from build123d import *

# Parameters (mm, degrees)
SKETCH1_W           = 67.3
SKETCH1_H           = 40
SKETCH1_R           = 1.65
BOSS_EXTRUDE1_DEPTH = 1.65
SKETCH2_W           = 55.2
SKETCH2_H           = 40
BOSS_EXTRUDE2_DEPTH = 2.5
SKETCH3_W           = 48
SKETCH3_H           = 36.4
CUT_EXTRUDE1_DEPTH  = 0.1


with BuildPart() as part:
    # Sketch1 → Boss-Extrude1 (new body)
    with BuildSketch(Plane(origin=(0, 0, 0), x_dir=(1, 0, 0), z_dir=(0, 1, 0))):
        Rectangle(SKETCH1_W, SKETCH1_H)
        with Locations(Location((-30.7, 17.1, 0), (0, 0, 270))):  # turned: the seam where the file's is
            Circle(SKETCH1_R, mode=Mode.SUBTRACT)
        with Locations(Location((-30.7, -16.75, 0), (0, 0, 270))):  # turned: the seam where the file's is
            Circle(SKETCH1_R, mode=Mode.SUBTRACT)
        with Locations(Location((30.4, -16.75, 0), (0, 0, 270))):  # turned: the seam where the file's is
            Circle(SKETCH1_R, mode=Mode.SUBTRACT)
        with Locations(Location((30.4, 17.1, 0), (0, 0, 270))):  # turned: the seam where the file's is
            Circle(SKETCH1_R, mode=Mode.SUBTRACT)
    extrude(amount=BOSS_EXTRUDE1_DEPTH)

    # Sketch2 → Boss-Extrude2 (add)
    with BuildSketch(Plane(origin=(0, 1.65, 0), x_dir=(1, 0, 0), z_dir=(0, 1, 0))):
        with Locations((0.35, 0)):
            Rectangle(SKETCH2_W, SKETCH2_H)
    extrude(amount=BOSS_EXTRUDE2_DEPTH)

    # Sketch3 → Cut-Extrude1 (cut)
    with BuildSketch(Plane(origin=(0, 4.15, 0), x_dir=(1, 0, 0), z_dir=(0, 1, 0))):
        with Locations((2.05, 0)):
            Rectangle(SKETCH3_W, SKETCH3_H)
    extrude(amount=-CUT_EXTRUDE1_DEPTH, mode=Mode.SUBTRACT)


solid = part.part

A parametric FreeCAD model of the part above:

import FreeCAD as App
import Part
import Sketcher
from FreeCAD import Vector
Q = App.Units.Quantity

doc = App.newDocument("Part")
params = doc.addObject("Spreadsheet::Sheet", "Params")
for row, (alias, value) in enumerate([
    ("sketch1_diameter", "3.3 mm"),
    ("sketch1_height", "40 mm"),
    ("sketch1_width", "67.3 mm"),
    ("pad1_length", "1.65 mm"),
    ("sketch2_height", "40 mm"),
    ("sketch2_width", "55.2 mm"),
    ("pad2_length", "2.5 mm"),
    ("sketch3_width", "48 mm"),
    ("sketch3_height", "36.4 mm"),
    ("pocket1_length", "0.1 mm"),
], start=1):
    params.set(f"A{row}", alias)
    params.set(f"B{row}", "=" + value)
    params.setAlias(f"B{row}", alias)

body = doc.addObject("PartDesign::Body", "Body")

# Sketch on XZ plane
sketch1 = body.newObject("Sketcher::SketchObject", "Sketch")
sketch1.AttachmentSupport = (doc.getObject("XZ_Plane"), [""])
sketch1.MapMode = "FlatFace"
sketch1.addGeometry(Part.LineSegment(Vector(-33.6, -20, 0), Vector(-33.6, 20, 0)), False)
sketch1.addGeometry(Part.LineSegment(Vector(-33.6, 20, 0), Vector(33.6, 20, 0)), False)
sketch1.addGeometry(Part.LineSegment(Vector(33.6, 20, 0), Vector(33.6, -20, 0)), False)
sketch1.addGeometry(Part.LineSegment(Vector(33.6, -20, 0), Vector(-33.6, -20, 0)), False)
sketch1.addGeometry(Part.Circle(Vector(-30.7, 16.8, 0), Vector(0, 0, 1), 1.6), False)
sketch1.addGeometry(Part.Circle(Vector(30.4, 16.8, 0), Vector(0, 0, 1), 1.6), False)
sketch1.addGeometry(Part.Circle(Vector(-30.7, -17.1, 0), Vector(0, 0, 1), 1.6), False)
sketch1.addGeometry(Part.Circle(Vector(30.4, -17.1, 0), Vector(0, 0, 1), 1.6), False)
sketch1.addConstraint(Sketcher.Constraint("Coincident", 0, 2, 1, 1))
sketch1.addConstraint(Sketcher.Constraint("Coincident", 1, 2, 2, 1))
sketch1.addConstraint(Sketcher.Constraint("Coincident", 2, 2, 3, 1))
sketch1.addConstraint(Sketcher.Constraint("Coincident", 3, 2, 0, 1))
sketch1.addConstraint(Sketcher.Constraint("Vertical", 0))
sketch1.addConstraint(Sketcher.Constraint("Horizontal", 1))
sketch1.addConstraint(Sketcher.Constraint("Vertical", 2))
sketch1.addConstraint(Sketcher.Constraint("Horizontal", 3))
sketch1.addConstraint(Sketcher.Constraint("Equal", 4, 5))
sketch1.addConstraint(Sketcher.Constraint("Equal", 5, 6))
sketch1.addConstraint(Sketcher.Constraint("Equal", 6, 7))
sketch1.addConstraint(Sketcher.Constraint("Symmetric", 0, 2, 2, 2, -1, 1))
sketch1.addConstraint(Sketcher.Constraint("Horizontal", 4, 3, 5, 3))
sketch1.addConstraint(Sketcher.Constraint("Horizontal", 6, 3, 7, 3))
sketch1.addConstraint(Sketcher.Constraint("Vertical", 4, 3, 6, 3))
sketch1.addConstraint(Sketcher.Constraint("Vertical", 5, 3, 7, 3))
sketch1.addConstraint(Sketcher.Constraint("Diameter", 4, Q("3.3 mm")))
sketch1.addConstraint(Sketcher.Constraint("DistanceY", 0, 1, 0, 2, Q("40 mm")))
sketch1.addConstraint(Sketcher.Constraint("DistanceX", 1, 1, 1, 2, Q("67.3 mm")))
sketch1.addConstraint(Sketcher.Constraint("DistanceX", 4, 3, -1, 1, Q("30.7 mm")))
sketch1.addConstraint(Sketcher.Constraint("DistanceX", -1, 1, 5, 3, Q("30.4 mm")))
sketch1.addConstraint(Sketcher.Constraint("DistanceY", 6, 3, -1, 1, Q("17.1 mm")))
sketch1.addConstraint(Sketcher.Constraint("DistanceY", -1, 1, 4, 3, Q("16.75 mm")))
sketch1.setExpression("Constraints[16]", "Params.sketch1_diameter")
sketch1.setExpression("Constraints[17]", "Params.sketch1_height")
sketch1.setExpression("Constraints[18]", "Params.sketch1_width")
pad1 = body.newObject("PartDesign::Pad", "Pad")
pad1.Profile = sketch1
pad1.setExpression("Length", "Params.pad1_length")
pad1.Reversed = True

# Sketch on XZ plane
sketch2 = body.newObject("Sketcher::SketchObject", "Sketch001")
sketch2.AttachmentSupport = (doc.getObject("XZ_Plane"), [""])
sketch2.MapMode = "FlatFace"
sketch2.AttachmentOffset = App.Placement(Vector(0, 0, -1.65), App.Rotation())
sketch2.addGeometry(Part.LineSegment(Vector(-27, -20, 0), Vector(-27, 20, 0)), False)
sketch2.addGeometry(Part.LineSegment(Vector(-27, 20, 0), Vector(28, 20, 0)), False)
sketch2.addGeometry(Part.LineSegment(Vector(28, 20, 0), Vector(28, -20, 0)), False)
sketch2.addGeometry(Part.LineSegment(Vector(28, -20, 0), Vector(-27, -20, 0)), False)
sketch2.addConstraint(Sketcher.Constraint("Coincident", 0, 2, 1, 1))
sketch2.addConstraint(Sketcher.Constraint("Coincident", 1, 2, 2, 1))
sketch2.addConstraint(Sketcher.Constraint("Coincident", 2, 2, 3, 1))
sketch2.addConstraint(Sketcher.Constraint("Coincident", 3, 2, 0, 1))
sketch2.addConstraint(Sketcher.Constraint("Vertical", 0))
sketch2.addConstraint(Sketcher.Constraint("Horizontal", 1))
sketch2.addConstraint(Sketcher.Constraint("Vertical", 2))
sketch2.addConstraint(Sketcher.Constraint("Horizontal", 3))
sketch2.addConstraint(Sketcher.Constraint("DistanceY", 0, 1, 0, 2, Q("40 mm")))
sketch2.addConstraint(Sketcher.Constraint("DistanceX", 1, 1, 1, 2, Q("55.2 mm")))
sketch2.addConstraint(Sketcher.Constraint("DistanceY", -1, 1, 0, 2, Q("20 mm")))
sketch2.addConstraint(Sketcher.Constraint("DistanceX", 0, 2, -1, 1, Q("27.25 mm")))
sketch2.setExpression("Constraints[8]", "Params.sketch2_height")
sketch2.setExpression("Constraints[9]", "Params.sketch2_width")
pad2 = body.newObject("PartDesign::Pad", "Pad001")
pad2.Profile = sketch2
pad2.setExpression("Length", "Params.pad2_length")
pad2.Reversed = True

# Sketch on XZ plane
sketch3 = body.newObject("Sketcher::SketchObject", "Sketch002")
sketch3.AttachmentSupport = (doc.getObject("XZ_Plane"), [""])
sketch3.MapMode = "FlatFace"
sketch3.AttachmentOffset = App.Placement(Vector(0, 0, -4.15), App.Rotation())
sketch3.addGeometry(Part.LineSegment(Vector(-22, -18, 0), Vector(-22, 18, 0)), False)
sketch3.addGeometry(Part.LineSegment(Vector(-22, 18, 0), Vector(26, 18, 0)), False)
sketch3.addGeometry(Part.LineSegment(Vector(26, 18, 0), Vector(26, -18, 0)), False)
sketch3.addGeometry(Part.LineSegment(Vector(26, -18, 0), Vector(-22, -18, 0)), False)
sketch3.addConstraint(Sketcher.Constraint("Coincident", 0, 2, 1, 1))
sketch3.addConstraint(Sketcher.Constraint("Coincident", 1, 2, 2, 1))
sketch3.addConstraint(Sketcher.Constraint("Coincident", 2, 2, 3, 1))
sketch3.addConstraint(Sketcher.Constraint("Coincident", 3, 2, 0, 1))
sketch3.addConstraint(Sketcher.Constraint("Vertical", 0))
sketch3.addConstraint(Sketcher.Constraint("Horizontal", 1))
sketch3.addConstraint(Sketcher.Constraint("Vertical", 2))
sketch3.addConstraint(Sketcher.Constraint("Horizontal", 3))
sketch3.addConstraint(Sketcher.Constraint("DistanceX", 1, 1, 1, 2, Q("48 mm")))
sketch3.addConstraint(Sketcher.Constraint("DistanceY", 0, 1, 0, 2, Q("36.4 mm")))
sketch3.addConstraint(Sketcher.Constraint("DistanceY", -1, 1, 0, 2, Q("18.2 mm")))
sketch3.addConstraint(Sketcher.Constraint("DistanceX", 0, 2, -1, 1, Q("21.95 mm")))
sketch3.setExpression("Constraints[8]", "Params.sketch3_width")
sketch3.setExpression("Constraints[9]", "Params.sketch3_height")
pocket1 = body.newObject("PartDesign::Pocket", "Pocket")
pocket1.Profile = sketch3
pocket1.setExpression("Length", "Params.pocket1_length")
pocket1.Reversed = True

doc.recompute()
